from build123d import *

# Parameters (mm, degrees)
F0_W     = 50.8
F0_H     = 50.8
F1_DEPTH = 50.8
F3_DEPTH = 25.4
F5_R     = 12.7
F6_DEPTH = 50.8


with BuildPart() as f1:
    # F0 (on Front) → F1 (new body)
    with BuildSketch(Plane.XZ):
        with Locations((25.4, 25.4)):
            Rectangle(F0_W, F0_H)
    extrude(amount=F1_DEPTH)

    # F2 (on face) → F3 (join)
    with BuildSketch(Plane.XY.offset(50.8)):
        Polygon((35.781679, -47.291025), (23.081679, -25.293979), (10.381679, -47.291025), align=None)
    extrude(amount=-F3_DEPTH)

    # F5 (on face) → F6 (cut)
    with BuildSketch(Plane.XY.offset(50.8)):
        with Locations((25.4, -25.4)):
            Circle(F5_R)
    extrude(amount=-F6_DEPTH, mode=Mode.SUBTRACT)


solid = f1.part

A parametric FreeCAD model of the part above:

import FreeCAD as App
import Part
import Sketcher

V = App.Vector
Q = App.Units.Quantity


def add_polygon(sketch, points):
    """Adds a closed chain of lines whose ends are joined by coincident constraints."""
    first, n = sketch.GeometryCount, len(points)
    for a, b in zip(points, points[1:] + points[:1]):
        sketch.addGeometry(Part.LineSegment(App.Vector(*a, 0), App.Vector(*b, 0)), False)
    for i in range(n):
        sketch.addConstraint(Sketcher.Constraint("Coincident", first + i, 2, first + (i + 1) % n, 1))

doc = App.newDocument("Part")
body = doc.addObject("PartDesign::Body", "Body")

sketch1 = body.newObject("Sketcher::SketchObject", "Sketch")
sketch1.AttachmentSupport = (doc.getObject("XZ_Plane"), [""])
sketch1.MapMode = "FlatFace"
add_polygon(sketch1, [(0, 51), (0, 0), (51, 0), (51, 51)])
sketch1.addConstraint(Sketcher.Constraint("Vertical", 0))
sketch1.addConstraint(Sketcher.Constraint("Horizontal", 1))
sketch1.addConstraint(Sketcher.Constraint("Vertical", 2))
sketch1.addConstraint(Sketcher.Constraint("Horizontal", 3))
sketch1.addConstraint(Sketcher.Constraint("Coincident", 0, 2, -1, 1))
sketch1.addConstraint(Sketcher.Constraint("Equal", 3, 0))
sketch1.addConstraint(Sketcher.Constraint("DistanceX", 1, 1, 1, 2, Q("2 in")))
pad1 = body.newObject("PartDesign::Pad", "Pad")
pad1.Profile = sketch1
pad1.Length = Q("2 in")

sketch2 = body.newObject("Sketcher::SketchObject", "Sketch001")
sketch2.AttachmentSupport = (doc.getObject("XY_Plane"), [""])
sketch2.MapMode = "FlatFace"
sketch2.AttachmentOffset = App.Placement(V(0, 0, 2 * 25.4), App.Rotation())
add_polygon(sketch2, [(36, -47), (23, -25), (10, -47)])
sketch2.addConstraint(Sketcher.Constraint("Horizontal", 2))
sketch2.addConstraint(Sketcher.Constraint("Equal", 0, 1))
sketch2.addConstraint(Sketcher.Constraint("DistanceX", 2, 1, 2, 2, Q("1 in")))
sketch2.addConstraint(Sketcher.Constraint("Distance", 0, Q("1 in")))
sketch2.addConstraint(Sketcher.Constraint("DistanceX", -1, 1, 0, 2, Q("23.081679 mm")))
sketch2.addConstraint(Sketcher.Constraint("DistanceY", 0, 2, -1, 1, Q("25.293979 mm")))
pad2 = body.newObject("PartDesign::Pad", "Pad001")
pad2.Profile = sketch2
pad2.Length = Q("1 in")
pad2.Reversed = True

sketch3 = body.newObject("Sketcher::SketchObject", "Sketch002")
sketch3.AttachmentSupport = (doc.getObject("XY_Plane"), [""])
sketch3.MapMode = "FlatFace"
sketch3.AttachmentOffset = App.Placement(V(0, 0, 2 * 25.4), App.Rotation())
sketch3.addGeometry(Part.Circle(V(25, -25, 0), V(0, 0, 1), 13), False)
sketch3.addConstraint(Sketcher.Constraint("Diameter", 0, Q("1 in")))
sketch3.addConstraint(Sketcher.Constraint("DistanceX", -1, 1, 0, 3, Q("1 in")))
sketch3.addConstraint(Sketcher.Constraint("DistanceY", 0, 3, -1, 1, Q("1 in")))
pocket1 = body.newObject("PartDesign::Pocket", "Pocket")
pocket1.Profile = sketch3
pocket1.Length = Q("2 in")

doc.recompute()
